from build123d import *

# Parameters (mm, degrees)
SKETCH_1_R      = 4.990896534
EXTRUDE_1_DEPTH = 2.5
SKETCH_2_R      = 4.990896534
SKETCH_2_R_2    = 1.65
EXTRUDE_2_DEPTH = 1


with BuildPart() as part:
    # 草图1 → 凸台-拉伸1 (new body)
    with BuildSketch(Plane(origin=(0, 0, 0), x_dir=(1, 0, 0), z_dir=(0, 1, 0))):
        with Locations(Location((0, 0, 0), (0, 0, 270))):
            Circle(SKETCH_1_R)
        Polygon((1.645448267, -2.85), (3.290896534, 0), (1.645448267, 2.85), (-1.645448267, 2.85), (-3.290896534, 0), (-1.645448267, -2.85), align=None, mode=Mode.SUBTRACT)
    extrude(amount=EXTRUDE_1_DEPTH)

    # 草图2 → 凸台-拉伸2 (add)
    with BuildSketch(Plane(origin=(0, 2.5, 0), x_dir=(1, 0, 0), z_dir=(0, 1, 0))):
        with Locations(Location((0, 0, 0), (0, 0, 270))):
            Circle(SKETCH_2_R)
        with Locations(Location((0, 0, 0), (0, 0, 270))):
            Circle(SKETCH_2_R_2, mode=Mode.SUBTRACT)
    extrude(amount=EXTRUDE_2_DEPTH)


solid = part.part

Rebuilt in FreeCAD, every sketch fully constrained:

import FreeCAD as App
import Part
import Sketcher
Q = App.Units.Quantity

doc = App.newDocument("Part")
body = doc.addObject("PartDesign::Body", "Body")

sketch1 = doc.addObject("Sketcher::SketchObject", "Sketch")
body.addObject(sketch1)
sketch1.AttachmentSupport = (doc.XZ_Plane, [""])
sketch1.MapMode = "FlatFace"
sketch1.addGeometry([
    Part.Circle(App.Vector(0, 0, 0), App.Vector(0, 0, 1), 4.990897),
    Part.LineSegment(App.Vector(3.290897, 0, 0), App.Vector(1.645448, 2.85, 0)),
    Part.LineSegment(App.Vector(1.645448, 2.85, 0), App.Vector(-1.645448, 2.85, 0)),
    Part.LineSegment(App.Vector(-1.645448, 2.85, 0), App.Vector(-3.290897, 0, 0)),
    Part.LineSegment(App.Vector(-3.290897, 0, 0), App.Vector(-1.645448, -2.85, 0)),
    Part.LineSegment(App.Vector(-1.645448, -2.85, 0), App.Vector(1.645448, -2.85, 0)),
    Part.LineSegment(App.Vector(1.645448, -2.85, 0), App.Vector(3.290897, 0, 0)),
], False)
sketch1.addConstraint([
    Sketcher.Constraint("Coincident", 1, 2, 2, 1),
    Sketcher.Constraint("Coincident", 2, 2, 3, 1),
    Sketcher.Constraint("Coincident", 3, 2, 4, 1),
    Sketcher.Constraint("Coincident", 4, 2, 5, 1),
    Sketcher.Constraint("Coincident", 5, 2, 6, 1),
    Sketcher.Constraint("Coincident", 6, 2, 1, 1),
    Sketcher.Constraint("Horizontal", 2),
    Sketcher.Constraint("Horizontal", 5),
    Sketcher.Constraint("Coincident", 0, 3, -1, 1),
    Sketcher.Constraint("Symmetric", 1, 2, 4, 2, -1, 1),
    Sketcher.Constraint("Symmetric", 3, 2, 6, 2, -1, 1),
    Sketcher.Constraint("PointOnObject", 3, 2, -1),
    Sketcher.Constraint("Parallel", 3, 6),
    Sketcher.Constraint("Vertical", 2, 2, 4, 2),
    Sketcher.Constraint("Angle", 1, Q("120 deg")),
    Sketcher.Constraint("DistanceY", 4, 2, 2, 2, Q("5.7 mm")),
    Sketcher.Constraint("Diameter", 0, Q("9.981793 mm")),
    Sketcher.Constraint("DistanceX", 2, 2, 2, 1, Q("3.290897 mm")),
])
pad1 = doc.addObject("PartDesign::Pad", "Pad")
body.addObject(pad1)
pad1.Profile = sketch1
pad1.Length = 2.5
pad1.Reversed = True

sketch2 = doc.addObject("Sketcher::SketchObject", "Sketch001")
body.addObject(sketch2)
sketch2.AttachmentSupport = (doc.XZ_Plane, [""])
sketch2.MapMode = "FlatFace"
sketch2.AttachmentOffset = App.Placement(App.Vector(0, 0, -2.5), App.Rotation())
sketch2.addGeometry([
    Part.Circle(App.Vector(0, 0, 0), App.Vector(0, 0, 1), 4.990897),
    Part.Circle(App.Vector(0, 0, 0), App.Vector(0, 0, 1), 1.65),
], False)
sketch2.addConstraint([
    Sketcher.Constraint("Coincident", 0, 3, -1, 1),
    Sketcher.Constraint("Coincident", 1, 3, -1, 1),
    Sketcher.Constraint("Diameter", 1, Q("3.3 mm")),
    Sketcher.Constraint("Diameter", 0, Q("9.981793 mm")),
])
pad2 = doc.addObject("PartDesign::Pad", "Pad001")
body.addObject(pad2)
pad2.Profile = sketch2
pad2.Length = 1
pad2.Reversed = True

doc.recompute()
